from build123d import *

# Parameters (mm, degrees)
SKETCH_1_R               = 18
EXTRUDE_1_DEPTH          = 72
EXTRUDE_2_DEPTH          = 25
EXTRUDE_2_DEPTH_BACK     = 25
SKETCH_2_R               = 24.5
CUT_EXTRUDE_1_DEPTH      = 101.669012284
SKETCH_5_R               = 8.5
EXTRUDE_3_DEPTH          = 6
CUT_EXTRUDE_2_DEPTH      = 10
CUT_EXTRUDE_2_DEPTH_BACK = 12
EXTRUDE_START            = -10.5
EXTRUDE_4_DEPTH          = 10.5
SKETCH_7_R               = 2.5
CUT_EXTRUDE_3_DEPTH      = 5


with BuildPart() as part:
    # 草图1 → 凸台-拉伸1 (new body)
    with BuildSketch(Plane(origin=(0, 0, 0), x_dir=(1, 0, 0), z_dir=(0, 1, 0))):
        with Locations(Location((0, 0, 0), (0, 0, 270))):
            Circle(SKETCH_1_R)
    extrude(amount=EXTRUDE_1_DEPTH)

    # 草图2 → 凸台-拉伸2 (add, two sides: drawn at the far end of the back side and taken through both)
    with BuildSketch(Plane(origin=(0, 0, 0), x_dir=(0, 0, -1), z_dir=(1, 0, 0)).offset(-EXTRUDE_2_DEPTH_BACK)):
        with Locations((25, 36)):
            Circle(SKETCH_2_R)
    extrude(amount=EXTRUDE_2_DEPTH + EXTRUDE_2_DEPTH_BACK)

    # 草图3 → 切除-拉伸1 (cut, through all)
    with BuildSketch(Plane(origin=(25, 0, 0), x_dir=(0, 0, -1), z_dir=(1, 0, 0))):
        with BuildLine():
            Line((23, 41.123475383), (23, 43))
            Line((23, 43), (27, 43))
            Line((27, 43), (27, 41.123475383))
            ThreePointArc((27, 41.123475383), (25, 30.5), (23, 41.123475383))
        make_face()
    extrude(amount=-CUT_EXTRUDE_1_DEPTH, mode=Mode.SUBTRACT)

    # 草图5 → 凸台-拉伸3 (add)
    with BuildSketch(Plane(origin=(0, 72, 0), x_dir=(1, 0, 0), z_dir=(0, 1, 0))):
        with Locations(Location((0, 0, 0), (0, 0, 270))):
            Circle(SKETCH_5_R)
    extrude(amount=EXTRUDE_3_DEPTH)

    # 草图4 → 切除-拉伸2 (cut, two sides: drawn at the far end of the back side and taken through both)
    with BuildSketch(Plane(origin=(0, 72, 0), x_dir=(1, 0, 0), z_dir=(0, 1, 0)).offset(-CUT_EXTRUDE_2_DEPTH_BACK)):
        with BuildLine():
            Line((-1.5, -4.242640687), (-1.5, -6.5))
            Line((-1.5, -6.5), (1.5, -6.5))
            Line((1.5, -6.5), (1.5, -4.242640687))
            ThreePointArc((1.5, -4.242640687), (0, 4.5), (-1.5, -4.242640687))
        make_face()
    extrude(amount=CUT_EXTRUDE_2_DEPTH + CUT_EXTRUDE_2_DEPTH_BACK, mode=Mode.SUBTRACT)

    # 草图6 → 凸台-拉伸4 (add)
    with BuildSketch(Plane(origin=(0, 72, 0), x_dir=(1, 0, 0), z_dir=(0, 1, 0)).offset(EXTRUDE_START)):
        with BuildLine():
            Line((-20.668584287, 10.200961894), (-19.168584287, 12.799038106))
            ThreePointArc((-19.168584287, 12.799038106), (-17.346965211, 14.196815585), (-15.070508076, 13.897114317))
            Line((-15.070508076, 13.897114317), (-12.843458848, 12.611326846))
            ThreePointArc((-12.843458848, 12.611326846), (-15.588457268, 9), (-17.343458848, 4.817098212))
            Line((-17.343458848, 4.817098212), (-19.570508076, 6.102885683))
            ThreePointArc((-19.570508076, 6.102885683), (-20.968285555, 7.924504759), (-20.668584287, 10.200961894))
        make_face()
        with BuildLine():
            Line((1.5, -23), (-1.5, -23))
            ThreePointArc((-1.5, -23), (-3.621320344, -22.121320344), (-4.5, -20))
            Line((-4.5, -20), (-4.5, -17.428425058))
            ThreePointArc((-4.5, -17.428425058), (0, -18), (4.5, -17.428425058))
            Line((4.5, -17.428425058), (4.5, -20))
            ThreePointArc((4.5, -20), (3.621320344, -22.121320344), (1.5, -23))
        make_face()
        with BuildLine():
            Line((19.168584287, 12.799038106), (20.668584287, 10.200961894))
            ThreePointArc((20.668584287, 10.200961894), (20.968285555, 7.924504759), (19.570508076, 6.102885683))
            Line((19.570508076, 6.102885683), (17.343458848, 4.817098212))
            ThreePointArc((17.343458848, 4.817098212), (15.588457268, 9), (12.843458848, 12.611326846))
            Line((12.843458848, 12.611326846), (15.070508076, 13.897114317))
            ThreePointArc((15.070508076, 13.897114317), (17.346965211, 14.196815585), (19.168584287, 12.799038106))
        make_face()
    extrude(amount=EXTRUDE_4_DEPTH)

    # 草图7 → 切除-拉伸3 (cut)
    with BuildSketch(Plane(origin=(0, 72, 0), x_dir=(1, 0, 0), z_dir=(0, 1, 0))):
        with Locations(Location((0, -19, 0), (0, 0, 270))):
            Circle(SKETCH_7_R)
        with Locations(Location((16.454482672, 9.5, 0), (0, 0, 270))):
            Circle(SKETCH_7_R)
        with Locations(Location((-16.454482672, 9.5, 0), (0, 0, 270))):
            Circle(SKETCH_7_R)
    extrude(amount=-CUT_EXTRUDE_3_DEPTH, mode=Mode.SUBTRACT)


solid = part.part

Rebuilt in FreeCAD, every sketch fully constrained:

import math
import FreeCAD as App
import Part
import Sketcher
from FreeCAD import Vector
Q = App.Units.Quantity

doc = App.newDocument("Part")
body = doc.addObject("PartDesign::Body", "Body")

# Sketch on XZ plane
sketch1 = body.newObject("Sketcher::SketchObject", "Sketch")
sketch1.AttachmentSupport = (doc.getObject("XZ_Plane"), [""])
sketch1.MapMode = "FlatFace"
sketch1.addGeometry(Part.Circle(Vector(0, 0, 0), Vector(0, 0, 1), 18), False)
sketch1.addConstraint([
    Sketcher.Constraint("Coincident", 0, 3, -1, 1),
    Sketcher.Constraint("Diameter", 0, 36.0),
])
pad1 = body.newObject("PartDesign::Pad", "Pad")
pad1.Profile = sketch1
pad1.Length = 72
pad1.Reversed = True

# Sketch on YZ plane
sketch2 = body.newObject("Sketcher::SketchObject", "Sketch001")
sketch2.AttachmentSupport = (doc.getObject("YZ_Plane"), [""])
sketch2.MapMode = "FlatFace"
sketch2.addGeometry(Part.Circle(Vector(36, -25, 0), Vector(0, 0, 1), 24), False)
sketch2.addConstraint([
    Sketcher.Constraint("Diameter", 0, 49.0),
    Sketcher.Constraint("DistanceX", -1, 1, 0, 3, 36.0),
    Sketcher.Constraint("DistanceY", 0, 3, -1, 1, 25.0),
])
pad2 = body.newObject("PartDesign::Pad", "Pad001")
pad2.Profile = sketch2
pad2.Type = "TwoLengths"
pad2.Length = 25
pad2.Length2 = 25

# Sketch on YZ plane
sketch3 = body.newObject("Sketcher::SketchObject", "Sketch002")
sketch3.AttachmentSupport = (doc.getObject("YZ_Plane"), [""])
sketch3.MapMode = "FlatFace"
sketch3.AttachmentOffset = App.Placement(Vector(0, 0, 25), App.Rotation())
sketch3.addGeometry([
    Part.LineSegment(Vector(43, -23, 0), Vector(41.1, -23, 0)),
    Part.ArcOfCircle(Part.Circle(Vector(36, -25, 0), Vector(0, 0, 1), 5.5), math.radians(21), math.radians(339)),
    Part.LineSegment(Vector(41.1, -27, 0), Vector(43, -27, 0)),
    Part.LineSegment(Vector(43, -27, 0), Vector(43, -23, 0)),
], False)
sketch3.addConstraint([
    Sketcher.Constraint("Coincident", 0, 2, 1, 1),
    Sketcher.Constraint("Coincident", 1, 2, 2, 1),
    Sketcher.Constraint("Coincident", 2, 2, 3, 1),
    Sketcher.Constraint("Coincident", 3, 2, 0, 1),
    Sketcher.Constraint("Horizontal", 0),
    Sketcher.Constraint("Horizontal", 2),
    Sketcher.Constraint("Vertical", 3),
    Sketcher.Constraint("Vertical", 0, 2, 1, 2),
    Sketcher.Constraint("Radius", 1, 5.5),
    Sketcher.Constraint("DistanceY", 3, 1, 3, 2, 4.0),
    Sketcher.Constraint("DistanceX", -1, 1, 1, 3, 36.0),
    Sketcher.Constraint("DistanceY", 1, 3, -1, 1, 25.0),
    Sketcher.Constraint("DistanceX", -1, 1, 2, 2, 43.0),
])
pocket1 = body.newObject("PartDesign::Pocket", "Pocket")
pocket1.Profile = sketch3
pocket1.Type = "ThroughAll"

# Sketch on XZ plane
sketch4 = body.newObject("Sketcher::SketchObject", "Sketch003")
sketch4.AttachmentSupport = (doc.getObject("XZ_Plane"), [""])
sketch4.MapMode = "FlatFace"
sketch4.AttachmentOffset = App.Placement(Vector(0, 0, -72), App.Rotation())
sketch4.addGeometry(Part.Circle(Vector(0, 0, 0), Vector(0, 0, 1), 8), False)
sketch4.addConstraint([
    Sketcher.Constraint("Coincident", 0, 3, -1, 1),
    Sketcher.Constraint("Diameter", 0, 17.0),
])
pad3 = body.newObject("PartDesign::Pad", "Pad002")
pad3.Profile = sketch4
pad3.Length = 6
pad3.Reversed = True

# Sketch on XZ plane
sketch5 = body.newObject("Sketcher::SketchObject", "Sketch004")
sketch5.AttachmentSupport = (doc.getObject("XZ_Plane"), [""])
sketch5.MapMode = "FlatFace"
sketch5.AttachmentOffset = App.Placement(Vector(0, 0, -72), App.Rotation())
sketch5.addGeometry([
    Part.LineSegment(Vector(-1.5, 4.2, 0), Vector(-1.5, 6.5, 0)),
    Part.LineSegment(Vector(-1.5, 6.5, 0), Vector(1.5, 6.5, 0)),
    Part.LineSegment(Vector(1.5, 6.5, 0), Vector(1.5, 4.2, 0)),
    Part.ArcOfCircle(Part.Circle(Vector(0, 0, 0), Vector(0, 0, 1), 4.5), math.radians(109), math.radians(431)),
], False)
sketch5.addConstraint([
    Sketcher.Constraint("Coincident", 0, 2, 1, 1),
    Sketcher.Constraint("Coincident", 1, 2, 2, 1),
    Sketcher.Constraint("Coincident", 2, 2, 3, 2),
    Sketcher.Constraint("Coincident", 3, 1, 0, 1),
    Sketcher.Constraint("Vertical", 0),
    Sketcher.Constraint("Horizontal", 1),
    Sketcher.Constraint("Vertical", 2),
    Sketcher.Constraint("Coincident", 3, 3, -1, 1),
    Sketcher.Constraint("Horizontal", 2, 2, 3, 1),
    Sketcher.Constraint("Radius", 3, 4.5),
    Sketcher.Constraint("DistanceX", 1, 1, 1, 2, 3.0),
    Sketcher.Constraint("DistanceY", -1, 1, 0, 2, 6.5),
])
pocket2 = body.newObject("PartDesign::Pocket", "Pocket001")
pocket2.Profile = sketch5
pocket2.Type = "TwoLengths"
pocket2.Length = 10
pocket2.Length2 = 12

# Sketch on XZ plane
sketch6 = body.newObject("Sketcher::SketchObject", "Sketch005")
sketch6.AttachmentSupport = (doc.getObject("XZ_Plane"), [""])
sketch6.MapMode = "FlatFace"
sketch6.AttachmentOffset = App.Placement(Vector(0, 0, -61.5), App.Rotation())
sketch6.addGeometry([
    Part.LineSegment(Vector(-19.2, -12.8, 0), Vector(-20.7, -10.2, 0)),  # 0
    Part.ArcOfCircle(Part.Circle(Vector(-18.1, -8.7, 0), Vector(0, 0, 1), 3), math.radians(120), math.radians(210)),  # 1
    Part.LineSegment(Vector(-19.6, -6.1, 0), Vector(-17.3, -4.8, 0)),  # 2
    Part.ArcOfCircle(Part.Circle(Vector(0, 0, 0), Vector(0, 0, 1), 18), math.radians(-164), math.radians(-136)),  # 3
    Part.LineSegment(Vector(-12.8, -12.6, 0), Vector(-15.1, -13.9, 0)),  # 4
    Part.ArcOfCircle(Part.Circle(Vector(-16.6, -11.3, 0), Vector(0, 0, 1), 3), math.radians(-150), math.radians(-60)),  # 5
    Part.LineSegment(Vector(-1.5, 23, 0), Vector(1.5, 23, 0)),  # 6
    Part.ArcOfCircle(Part.Circle(Vector(1.5, 20, 0), Vector(0, 0, 1), 3), math.radians(0), math.radians(90)),  # 7
    Part.LineSegment(Vector(4.5, 20, 0), Vector(4.5, 17.4, 0)),  # 8
    Part.ArcOfCircle(Part.Circle(Vector(0, 0, 0), Vector(0, 0, 1), 18), math.radians(76), math.radians(104)),  # 9
    Part.LineSegment(Vector(-4.5, 17.4, 0), Vector(-4.5, 20, 0)),  # 10
    Part.ArcOfCircle(Part.Circle(Vector(-1.5, 20, 0), Vector(0, 0, 1), 3), math.radians(90), math.radians(180)),  # 11
    Part.LineSegment(Vector(20.7, -10.2, 0), Vector(19.2, -12.8, 0)),  # 12
    Part.ArcOfCircle(Part.Circle(Vector(16.6, -11.3, 0), Vector(0, 0, 1), 3), math.radians(-120), math.radians(-30)),  # 13
    Part.LineSegment(Vector(15.1, -13.9, 0), Vector(12.8, -12.6, 0)),  # 14
    Part.ArcOfCircle(Part.Circle(Vector(0, 0, 0), Vector(0, 0, 1), 18), math.radians(-44), math.radians(-16)),  # 15
    Part.LineSegment(Vector(17.3, -4.8, 0), Vector(19.6, -6.1, 0)),  # 16
    Part.ArcOfCircle(Part.Circle(Vector(18.1, -8.7, 0), Vector(0, 0, 1), 3), math.radians(-30), math.radians(60)),  # 17
], False)
sketch6.addConstraint([
    Sketcher.Constraint("Tangent", 0, 2, 1, 2),
    Sketcher.Constraint("Tangent", 1, 1, 2, 1),
    Sketcher.Constraint("Coincident", 2, 2, 3, 1),
    Sketcher.Constraint("Coincident", 3, 2, 4, 1),
    Sketcher.Constraint("Tangent", 4, 2, 5, 2),
    Sketcher.Constraint("Tangent", 5, 1, 0, 1),
    Sketcher.Constraint("Tangent", 6, 2, 7, 2),
    Sketcher.Constraint("Tangent", 7, 1, 8, 1),
    Sketcher.Constraint("Coincident", 8, 2, 9, 1),
    Sketcher.Constraint("Coincident", 9, 2, 10, 1),
    Sketcher.Constraint("Tangent", 10, 2, 11, 2),
    Sketcher.Constraint("Tangent", 11, 1, 6, 1),
    Sketcher.Constraint("Tangent", 12, 2, 13, 2),
    Sketcher.Constraint("Tangent", 13, 1, 14, 1),
    Sketcher.Constraint("Coincident", 14, 2, 15, 1),
    Sketcher.Constraint("Coincident", 15, 2, 16, 1),
    Sketcher.Constraint("Tangent", 16, 2, 17, 2),
    Sketcher.Constraint("Tangent", 17, 1, 12, 1),
    Sketcher.Constraint("Horizontal", 6),
    Sketcher.Constraint("Vertical", 8),
    Sketcher.Constraint("Vertical", 10),
    Sketcher.Constraint("Coincident", 3, 3, -1, 1),
    Sketcher.Constraint("Coincident", 9, 3, -1, 1),
    Sketcher.Constraint("Coincident", 15, 3, -1, 1),
    Sketcher.Constraint("Equal", 1, 5),
    Sketcher.Constraint("Equal", 5, 7),
    Sketcher.Constraint("Equal", 3, 9),
    Sketcher.Constraint("Equal", 7, 11),
    Sketcher.Constraint("Equal", 11, 13),
    Sketcher.Constraint("Equal", 9, 15),
    Sketcher.Constraint("Equal", 13, 17),
    Sketcher.Constraint("Symmetric", 5, 3, 13, 3, -2),
    Sketcher.Constraint("Symmetric", 1, 3, 17, 3, -2),
    Sketcher.Constraint("Perpendicular", 0, 2),
    Sketcher.Constraint("Parallel", 2, 4),
    Sketcher.Constraint("Perpendicular", 12, 14),
    Sketcher.Constraint("Parallel", 14, 16),
    Sketcher.Constraint("Horizontal", 8, 2, 9, 2),
    Sketcher.Constraint("Equal", 2, 4),
    Sketcher.Constraint("Radius", 1, 3.0),
    Sketcher.Constraint("Radius", 3, 18.0),
    Sketcher.Constraint("DistanceX", 6, 1, 6, 2, 3.0),
    Sketcher.Constraint("Angle", 0, Q("120 deg")),
    Sketcher.Constraint("Distance", 0, 3.0),
    Sketcher.Constraint("DistanceY", -1, 1, 7, 3, 20.0),
    Sketcher.Constraint("DistanceX", 1, 3, -1, 1, 18.070508),
])
pad4 = body.newObject("PartDesign::Pad", "Pad003")
pad4.Profile = sketch6
pad4.Length = 10.5
pad4.Reversed = True

# Sketch on XZ plane
sketch7 = body.newObject("Sketcher::SketchObject", "Sketch006")
sketch7.AttachmentSupport = (doc.getObject("XZ_Plane"), [""])
sketch7.MapMode = "FlatFace"
sketch7.AttachmentOffset = App.Placement(Vector(0, 0, -72), App.Rotation())
sketch7.addGeometry([
    Part.Circle(Vector(0, 19, 0), Vector(0, 0, 1), 2.5),
    Part.Circle(Vector(16.5, -9.5, 0), Vector(0, 0, 1), 2.5),
    Part.Circle(Vector(-16.5, -9.5, 0), Vector(0, 0, 1), 2.5),
], False)
sketch7.addConstraint([
    Sketcher.Constraint("Equal", 0, 1),
    Sketcher.Constraint("Equal", 1, 2),
    Sketcher.Constraint("Symmetric", 1, 3, 2, 3, -2),
    Sketcher.Constraint("PointOnObject", 0, 3, -2),
    Sketcher.Constraint("Diameter", 0, 5.0),
    Sketcher.Constraint("DistanceY", -1, 1, 0, 3, 19.0),
    Sketcher.Constraint("DistanceY", 1, 3, -1, 1, 9.5),
    Sketcher.Constraint("DistanceX", -1, 1, 1, 3, 16.454483),
])
pocket3 = body.newObject("PartDesign::Pocket", "Pocket002")
pocket3.Profile = sketch7
pocket3.Length = 5
pocket3.Reversed = True

doc.recompute()
